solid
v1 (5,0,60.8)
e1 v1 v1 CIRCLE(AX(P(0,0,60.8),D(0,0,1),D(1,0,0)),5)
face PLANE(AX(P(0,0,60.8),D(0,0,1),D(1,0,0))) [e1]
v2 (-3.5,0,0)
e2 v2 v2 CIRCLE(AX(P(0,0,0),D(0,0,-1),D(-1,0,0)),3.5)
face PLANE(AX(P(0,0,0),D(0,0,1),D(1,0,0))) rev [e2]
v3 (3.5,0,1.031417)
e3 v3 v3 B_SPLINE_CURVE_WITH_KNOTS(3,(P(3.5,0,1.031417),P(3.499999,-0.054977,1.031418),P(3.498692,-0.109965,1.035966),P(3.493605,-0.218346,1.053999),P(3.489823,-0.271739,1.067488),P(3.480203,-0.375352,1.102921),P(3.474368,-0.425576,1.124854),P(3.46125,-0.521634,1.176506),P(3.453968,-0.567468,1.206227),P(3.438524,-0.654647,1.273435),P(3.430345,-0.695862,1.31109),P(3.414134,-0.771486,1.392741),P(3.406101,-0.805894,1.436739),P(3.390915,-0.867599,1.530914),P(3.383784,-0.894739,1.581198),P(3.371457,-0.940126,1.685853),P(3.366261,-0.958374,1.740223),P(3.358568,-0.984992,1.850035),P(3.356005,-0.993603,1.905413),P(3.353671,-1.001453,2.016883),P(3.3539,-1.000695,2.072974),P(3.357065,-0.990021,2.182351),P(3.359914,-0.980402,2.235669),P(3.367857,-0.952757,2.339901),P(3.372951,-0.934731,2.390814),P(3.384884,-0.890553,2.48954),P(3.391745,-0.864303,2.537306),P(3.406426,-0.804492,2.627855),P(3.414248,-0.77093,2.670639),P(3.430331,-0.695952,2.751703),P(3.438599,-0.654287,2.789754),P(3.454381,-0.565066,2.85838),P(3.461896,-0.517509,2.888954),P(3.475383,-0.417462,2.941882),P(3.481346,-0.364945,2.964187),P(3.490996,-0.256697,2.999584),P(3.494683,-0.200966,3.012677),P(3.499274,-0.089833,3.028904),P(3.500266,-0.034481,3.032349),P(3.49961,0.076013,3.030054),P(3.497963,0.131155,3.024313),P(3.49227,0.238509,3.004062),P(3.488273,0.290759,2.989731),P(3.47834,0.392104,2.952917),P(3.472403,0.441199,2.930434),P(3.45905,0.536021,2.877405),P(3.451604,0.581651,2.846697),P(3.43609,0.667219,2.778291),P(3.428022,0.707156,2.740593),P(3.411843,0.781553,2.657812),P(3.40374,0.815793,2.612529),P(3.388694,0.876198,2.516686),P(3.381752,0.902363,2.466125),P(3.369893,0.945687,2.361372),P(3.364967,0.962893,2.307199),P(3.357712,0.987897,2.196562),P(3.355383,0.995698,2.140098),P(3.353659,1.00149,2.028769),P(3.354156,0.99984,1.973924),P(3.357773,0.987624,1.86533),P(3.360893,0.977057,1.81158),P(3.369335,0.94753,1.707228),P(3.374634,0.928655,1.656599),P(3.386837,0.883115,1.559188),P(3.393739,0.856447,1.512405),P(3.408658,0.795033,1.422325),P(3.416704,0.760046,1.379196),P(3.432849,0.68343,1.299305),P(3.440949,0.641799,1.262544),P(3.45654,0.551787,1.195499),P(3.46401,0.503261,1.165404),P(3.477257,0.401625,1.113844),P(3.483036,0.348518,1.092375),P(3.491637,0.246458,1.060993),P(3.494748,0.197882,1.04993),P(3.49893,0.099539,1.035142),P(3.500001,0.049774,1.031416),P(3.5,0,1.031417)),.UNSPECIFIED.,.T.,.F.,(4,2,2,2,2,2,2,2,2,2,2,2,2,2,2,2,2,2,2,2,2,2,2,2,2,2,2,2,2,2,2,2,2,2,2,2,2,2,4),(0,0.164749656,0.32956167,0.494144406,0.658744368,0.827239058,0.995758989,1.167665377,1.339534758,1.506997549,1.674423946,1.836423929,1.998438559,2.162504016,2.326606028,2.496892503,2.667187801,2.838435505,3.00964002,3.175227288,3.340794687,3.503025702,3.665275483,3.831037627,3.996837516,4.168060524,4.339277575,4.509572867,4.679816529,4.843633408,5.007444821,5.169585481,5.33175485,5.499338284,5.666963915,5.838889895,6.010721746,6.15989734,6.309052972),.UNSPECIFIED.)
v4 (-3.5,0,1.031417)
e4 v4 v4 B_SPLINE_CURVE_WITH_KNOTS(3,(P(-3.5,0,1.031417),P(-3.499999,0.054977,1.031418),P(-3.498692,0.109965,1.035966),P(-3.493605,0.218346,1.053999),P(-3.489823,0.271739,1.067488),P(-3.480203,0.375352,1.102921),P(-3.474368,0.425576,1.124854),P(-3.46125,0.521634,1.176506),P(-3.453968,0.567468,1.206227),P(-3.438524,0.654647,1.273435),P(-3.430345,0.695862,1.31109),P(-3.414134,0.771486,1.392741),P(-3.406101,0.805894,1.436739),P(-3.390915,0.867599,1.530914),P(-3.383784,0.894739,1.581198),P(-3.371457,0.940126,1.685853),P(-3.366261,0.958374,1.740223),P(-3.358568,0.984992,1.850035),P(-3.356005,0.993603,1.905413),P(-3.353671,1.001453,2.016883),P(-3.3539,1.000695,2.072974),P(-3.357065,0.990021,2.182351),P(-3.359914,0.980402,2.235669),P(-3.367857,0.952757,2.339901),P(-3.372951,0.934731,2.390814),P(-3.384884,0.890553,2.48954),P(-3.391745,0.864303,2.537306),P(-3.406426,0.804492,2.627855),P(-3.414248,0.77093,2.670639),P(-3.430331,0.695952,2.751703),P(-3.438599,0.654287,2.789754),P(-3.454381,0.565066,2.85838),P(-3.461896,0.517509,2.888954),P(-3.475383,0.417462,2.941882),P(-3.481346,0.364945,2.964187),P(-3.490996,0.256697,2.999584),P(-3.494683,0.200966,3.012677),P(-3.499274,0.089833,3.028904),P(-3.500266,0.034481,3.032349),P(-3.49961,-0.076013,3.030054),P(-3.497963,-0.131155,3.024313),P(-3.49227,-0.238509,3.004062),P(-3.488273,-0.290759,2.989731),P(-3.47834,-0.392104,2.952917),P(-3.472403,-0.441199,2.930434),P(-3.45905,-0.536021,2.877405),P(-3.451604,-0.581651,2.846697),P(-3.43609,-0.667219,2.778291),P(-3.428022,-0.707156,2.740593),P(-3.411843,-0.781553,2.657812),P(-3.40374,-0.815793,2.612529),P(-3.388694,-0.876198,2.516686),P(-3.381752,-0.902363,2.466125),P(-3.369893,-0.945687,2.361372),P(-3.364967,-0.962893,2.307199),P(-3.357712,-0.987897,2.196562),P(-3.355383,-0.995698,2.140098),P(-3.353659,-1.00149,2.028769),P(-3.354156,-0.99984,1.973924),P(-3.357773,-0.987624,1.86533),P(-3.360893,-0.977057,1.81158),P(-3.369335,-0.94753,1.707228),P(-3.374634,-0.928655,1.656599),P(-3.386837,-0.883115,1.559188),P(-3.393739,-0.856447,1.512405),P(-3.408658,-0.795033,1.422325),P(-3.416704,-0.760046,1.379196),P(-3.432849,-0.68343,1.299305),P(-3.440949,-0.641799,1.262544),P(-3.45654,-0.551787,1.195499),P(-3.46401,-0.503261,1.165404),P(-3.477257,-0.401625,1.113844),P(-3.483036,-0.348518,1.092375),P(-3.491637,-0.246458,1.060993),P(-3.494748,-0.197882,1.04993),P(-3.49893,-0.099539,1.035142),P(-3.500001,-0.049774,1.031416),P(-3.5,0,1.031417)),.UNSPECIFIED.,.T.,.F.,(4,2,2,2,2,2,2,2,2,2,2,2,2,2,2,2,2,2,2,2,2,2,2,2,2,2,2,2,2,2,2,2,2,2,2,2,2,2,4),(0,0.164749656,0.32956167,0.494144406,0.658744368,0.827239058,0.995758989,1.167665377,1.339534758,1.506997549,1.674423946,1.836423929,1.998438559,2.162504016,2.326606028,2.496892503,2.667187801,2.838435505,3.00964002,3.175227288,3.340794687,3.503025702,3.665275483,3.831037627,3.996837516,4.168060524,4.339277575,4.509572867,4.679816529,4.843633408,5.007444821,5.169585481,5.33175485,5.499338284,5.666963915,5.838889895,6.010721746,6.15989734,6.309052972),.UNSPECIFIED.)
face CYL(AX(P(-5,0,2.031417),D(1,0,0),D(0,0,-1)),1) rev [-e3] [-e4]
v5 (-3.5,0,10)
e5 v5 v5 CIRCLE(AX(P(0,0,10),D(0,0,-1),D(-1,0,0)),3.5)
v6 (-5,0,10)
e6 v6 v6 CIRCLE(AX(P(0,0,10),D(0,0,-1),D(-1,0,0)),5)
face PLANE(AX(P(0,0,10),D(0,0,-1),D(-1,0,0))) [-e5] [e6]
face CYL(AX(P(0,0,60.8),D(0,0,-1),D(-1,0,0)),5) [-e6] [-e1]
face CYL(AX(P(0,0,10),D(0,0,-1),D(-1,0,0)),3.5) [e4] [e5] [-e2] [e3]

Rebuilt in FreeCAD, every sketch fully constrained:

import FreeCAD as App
import Part
import Sketcher
Q = App.Units.Quantity


def add_polygon(sketch, points):
    """Adds a closed chain of lines whose ends are joined by coincident constraints."""
    first, n = sketch.GeometryCount, len(points)
    for a, b in zip(points, points[1:] + points[:1]):
        sketch.addGeometry(Part.LineSegment(App.Vector(*a, 0), App.Vector(*b, 0)), False)
    for i in range(n):
        sketch.addConstraint(Sketcher.Constraint("Coincident", first + i, 2, first + (i + 1) % n, 1))

doc = App.newDocument("Part")
params = doc.addObject("Spreadsheet::Sheet", "Params")
for row, (alias, value) in enumerate([
    ("sketch1_diameter", "10 mm"),
    ("pad1_length", "60.8 mm"),
    ("sketch2_diameter", "2 mm"),
    ("sketch3_diameter", "7 mm"),
    ("pocket2_length", "10 mm"),
], start=1):
    params.set(f"A{row}", alias)
    params.set(f"B{row}", "=" + value)
    params.setAlias(f"B{row}", alias)

body = doc.addObject("PartDesign::Body", "Body")

# Sketch on XY plane
sketch1 = body.newObject("Sketcher::SketchObject", "Sketch")
sketch1.AttachmentSupport = (doc.getObject("XY_Plane"), [""])
sketch1.MapMode = "FlatFace"
sketch1.addGeometry(Part.Circle(App.Vector(0, 0, 0), App.Vector(0, 0, 1), 5), False)
sketch1.addConstraint([
    Sketcher.Constraint("Coincident", 0, 3, -1, 1),
    Sketcher.Constraint("Diameter", 0, Q("10 mm")),
])
sketch1.setExpression("Constraints[1]", "Params.sketch1_diameter")
pad1 = body.newObject("PartDesign::Pad", "Pad")
pad1.Profile = sketch1
pad1.setExpression("Length", "Params.pad1_length")

# Sketch on YZ plane
sketch2 = body.newObject("Sketcher::SketchObject", "Sketch001")
sketch2.AttachmentSupport = (doc.getObject("YZ_Plane"), [""])
sketch2.MapMode = "FlatFace"
sketch2.addGeometry(Part.Circle(App.Vector(0, 2, 0), App.Vector(0, 0, 1), 1), False)
sketch2.addConstraint([
    Sketcher.Constraint("PointOnObject", 0, 3, -2),
    Sketcher.Constraint("Diameter", 0, Q("2 mm")),
    Sketcher.Constraint("DistanceY", -1, 1, 0, 3, Q("2.031417 mm")),
])
sketch2.setExpression("Constraints[1]", "Params.sketch2_diameter")
pocket1 = body.newObject("PartDesign::Pocket", "Pocket")
pocket1.Profile = sketch2
pocket1.Type = "ThroughAll"
pocket1.Midplane = True

# Sketch on XY plane
sketch3 = body.newObject("Sketcher::SketchObject", "Sketch002")
sketch3.AttachmentSupport = (doc.getObject("XY_Plane"), [""])
sketch3.MapMode = "FlatFace"
add_polygon(sketch3, [(12.2, 12.2), (12.2, -12.2), (-12.2, -12.2), (-12.2, 12.2)])  # lines 0-3
sketch3.addGeometry(Part.Circle(App.Vector(0, 0, 0), App.Vector(0, 0, 1), 3.5), False)  # 4
sketch3.addConstraint([
    Sketcher.Constraint("Vertical", 0),
    Sketcher.Constraint("Horizontal", 1),
    Sketcher.Constraint("Vertical", 2),
    Sketcher.Constraint("Horizontal", 3),
    Sketcher.Constraint("Coincident", 4, 3, -1, 1),
    Sketcher.Constraint("Symmetric", 0, 2, 2, 2, -1, 1),
    Sketcher.Constraint("Equal", 3, 0),
    Sketcher.Constraint("Diameter", 4, Q("7 mm")),
    Sketcher.Constraint("DistanceX", 1, 2, 1, 1, Q("24.484 mm")),
])
sketch3.setExpression("Constraints[11]", "Params.sketch3_diameter")
pocket2 = body.newObject("PartDesign::Pocket", "Pocket001")
pocket2.Profile = sketch3
pocket2.setExpression("Length", "Params.pocket2_length")
pocket2.Reversed = True

doc.recompute()
